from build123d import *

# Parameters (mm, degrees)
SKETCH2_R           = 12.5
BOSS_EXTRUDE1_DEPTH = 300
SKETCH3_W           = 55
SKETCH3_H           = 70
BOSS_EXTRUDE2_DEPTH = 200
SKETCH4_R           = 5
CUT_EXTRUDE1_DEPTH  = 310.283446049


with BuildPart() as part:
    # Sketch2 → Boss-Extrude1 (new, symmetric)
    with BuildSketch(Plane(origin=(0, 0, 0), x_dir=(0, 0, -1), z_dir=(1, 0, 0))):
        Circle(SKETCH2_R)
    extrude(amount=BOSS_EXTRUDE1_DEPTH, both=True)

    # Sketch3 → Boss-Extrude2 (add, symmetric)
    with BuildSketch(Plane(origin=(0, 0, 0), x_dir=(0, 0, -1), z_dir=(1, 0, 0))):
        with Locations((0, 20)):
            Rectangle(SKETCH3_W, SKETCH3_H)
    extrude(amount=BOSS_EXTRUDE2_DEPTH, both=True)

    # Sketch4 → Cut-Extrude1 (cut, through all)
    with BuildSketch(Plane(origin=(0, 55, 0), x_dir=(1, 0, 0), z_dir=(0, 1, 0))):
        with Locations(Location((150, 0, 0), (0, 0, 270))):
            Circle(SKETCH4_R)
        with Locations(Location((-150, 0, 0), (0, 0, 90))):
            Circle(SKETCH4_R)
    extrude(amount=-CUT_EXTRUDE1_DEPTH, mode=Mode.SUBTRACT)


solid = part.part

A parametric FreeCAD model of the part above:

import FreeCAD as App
import Part
import Sketcher


def add_polygon(sketch, points):
    """Adds a closed chain of lines whose ends are joined by coincident constraints."""
    first, n = sketch.GeometryCount, len(points)
    for a, b in zip(points, points[1:] + points[:1]):
        sketch.addGeometry(Part.LineSegment(App.Vector(*a, 0), App.Vector(*b, 0)), False)
    for i in range(n):
        sketch.addConstraint(Sketcher.Constraint("Coincident", first + i, 2, first + (i + 1) % n, 1))

doc = App.newDocument("Part")
body = doc.addObject("PartDesign::Body", "Body")

sketch1 = body.newObject("Sketcher::SketchObject", "Sketch")
sketch1.AttachmentSupport = (doc.getObject("YZ_Plane"), [""])
sketch1.MapMode = "FlatFace"
sketch1.addGeometry(Part.Circle(App.Vector(0, 0, 0), App.Vector(0, 0, 1), 12), False)
sketch1.addConstraint([
    Sketcher.Constraint("Coincident", 0, 3, -1, 1),
    Sketcher.Constraint("Diameter", 0, 25.0),
])
pad1 = body.newObject("PartDesign::Pad", "Pad")
pad1.Profile = sketch1
pad1.Length = 600
pad1.Midplane = True

sketch2 = body.newObject("Sketcher::SketchObject", "Sketch001")
sketch2.AttachmentSupport = (doc.getObject("YZ_Plane"), [""])
sketch2.MapMode = "FlatFace"
add_polygon(sketch2, [(55, 28), (-15, 28), (-15, -28), (55, -28)])
sketch2.addConstraint([
    Sketcher.Constraint("Horizontal", 0),
    Sketcher.Constraint("Vertical", 1),
    Sketcher.Constraint("Horizontal", 2),
    Sketcher.Constraint("Vertical", 3),
    Sketcher.Constraint("DistanceX", 0, 2, 0, 1, 70.0),
    Sketcher.Constraint("DistanceY", 1, 2, 1, 1, 55.0),
    Sketcher.Constraint("DistanceX", 0, 2, -1, 1, 15.0),
    Sketcher.Constraint("DistanceY", -1, 1, 0, 2, 27.5),
])
pad2 = body.newObject("PartDesign::Pad", "Pad001")
pad2.Profile = sketch2
pad2.Length = 400
pad2.Midplane = True

sketch3 = body.newObject("Sketcher::SketchObject", "Sketch002")
sketch3.AttachmentSupport = (doc.getObject("XZ_Plane"), [""])
sketch3.MapMode = "FlatFace"
sketch3.AttachmentOffset = App.Placement(App.Vector(0, 0, -55), App.Rotation())
sketch3.addGeometry([
    Part.Circle(App.Vector(150, 0, 0), App.Vector(0, 0, 1), 5),
    Part.Circle(App.Vector(-150, 0, 0), App.Vector(0, 0, 1), 5),
], False)
sketch3.addConstraint([
    Sketcher.Constraint("Equal", 0, 1),
    Sketcher.Constraint("Symmetric", 0, 3, 1, 3, -1, 1),
    Sketcher.Constraint("PointOnObject", 0, 3, -1),
    Sketcher.Constraint("Diameter", 0, 10.0),
    Sketcher.Constraint("DistanceX", -1, 1, 0, 3, 150.0),
])
pocket1 = body.newObject("PartDesign::Pocket", "Pocket")
pocket1.Profile = sketch3
pocket1.Type = "ThroughAll"
pocket1.Reversed = True

doc.recompute()
